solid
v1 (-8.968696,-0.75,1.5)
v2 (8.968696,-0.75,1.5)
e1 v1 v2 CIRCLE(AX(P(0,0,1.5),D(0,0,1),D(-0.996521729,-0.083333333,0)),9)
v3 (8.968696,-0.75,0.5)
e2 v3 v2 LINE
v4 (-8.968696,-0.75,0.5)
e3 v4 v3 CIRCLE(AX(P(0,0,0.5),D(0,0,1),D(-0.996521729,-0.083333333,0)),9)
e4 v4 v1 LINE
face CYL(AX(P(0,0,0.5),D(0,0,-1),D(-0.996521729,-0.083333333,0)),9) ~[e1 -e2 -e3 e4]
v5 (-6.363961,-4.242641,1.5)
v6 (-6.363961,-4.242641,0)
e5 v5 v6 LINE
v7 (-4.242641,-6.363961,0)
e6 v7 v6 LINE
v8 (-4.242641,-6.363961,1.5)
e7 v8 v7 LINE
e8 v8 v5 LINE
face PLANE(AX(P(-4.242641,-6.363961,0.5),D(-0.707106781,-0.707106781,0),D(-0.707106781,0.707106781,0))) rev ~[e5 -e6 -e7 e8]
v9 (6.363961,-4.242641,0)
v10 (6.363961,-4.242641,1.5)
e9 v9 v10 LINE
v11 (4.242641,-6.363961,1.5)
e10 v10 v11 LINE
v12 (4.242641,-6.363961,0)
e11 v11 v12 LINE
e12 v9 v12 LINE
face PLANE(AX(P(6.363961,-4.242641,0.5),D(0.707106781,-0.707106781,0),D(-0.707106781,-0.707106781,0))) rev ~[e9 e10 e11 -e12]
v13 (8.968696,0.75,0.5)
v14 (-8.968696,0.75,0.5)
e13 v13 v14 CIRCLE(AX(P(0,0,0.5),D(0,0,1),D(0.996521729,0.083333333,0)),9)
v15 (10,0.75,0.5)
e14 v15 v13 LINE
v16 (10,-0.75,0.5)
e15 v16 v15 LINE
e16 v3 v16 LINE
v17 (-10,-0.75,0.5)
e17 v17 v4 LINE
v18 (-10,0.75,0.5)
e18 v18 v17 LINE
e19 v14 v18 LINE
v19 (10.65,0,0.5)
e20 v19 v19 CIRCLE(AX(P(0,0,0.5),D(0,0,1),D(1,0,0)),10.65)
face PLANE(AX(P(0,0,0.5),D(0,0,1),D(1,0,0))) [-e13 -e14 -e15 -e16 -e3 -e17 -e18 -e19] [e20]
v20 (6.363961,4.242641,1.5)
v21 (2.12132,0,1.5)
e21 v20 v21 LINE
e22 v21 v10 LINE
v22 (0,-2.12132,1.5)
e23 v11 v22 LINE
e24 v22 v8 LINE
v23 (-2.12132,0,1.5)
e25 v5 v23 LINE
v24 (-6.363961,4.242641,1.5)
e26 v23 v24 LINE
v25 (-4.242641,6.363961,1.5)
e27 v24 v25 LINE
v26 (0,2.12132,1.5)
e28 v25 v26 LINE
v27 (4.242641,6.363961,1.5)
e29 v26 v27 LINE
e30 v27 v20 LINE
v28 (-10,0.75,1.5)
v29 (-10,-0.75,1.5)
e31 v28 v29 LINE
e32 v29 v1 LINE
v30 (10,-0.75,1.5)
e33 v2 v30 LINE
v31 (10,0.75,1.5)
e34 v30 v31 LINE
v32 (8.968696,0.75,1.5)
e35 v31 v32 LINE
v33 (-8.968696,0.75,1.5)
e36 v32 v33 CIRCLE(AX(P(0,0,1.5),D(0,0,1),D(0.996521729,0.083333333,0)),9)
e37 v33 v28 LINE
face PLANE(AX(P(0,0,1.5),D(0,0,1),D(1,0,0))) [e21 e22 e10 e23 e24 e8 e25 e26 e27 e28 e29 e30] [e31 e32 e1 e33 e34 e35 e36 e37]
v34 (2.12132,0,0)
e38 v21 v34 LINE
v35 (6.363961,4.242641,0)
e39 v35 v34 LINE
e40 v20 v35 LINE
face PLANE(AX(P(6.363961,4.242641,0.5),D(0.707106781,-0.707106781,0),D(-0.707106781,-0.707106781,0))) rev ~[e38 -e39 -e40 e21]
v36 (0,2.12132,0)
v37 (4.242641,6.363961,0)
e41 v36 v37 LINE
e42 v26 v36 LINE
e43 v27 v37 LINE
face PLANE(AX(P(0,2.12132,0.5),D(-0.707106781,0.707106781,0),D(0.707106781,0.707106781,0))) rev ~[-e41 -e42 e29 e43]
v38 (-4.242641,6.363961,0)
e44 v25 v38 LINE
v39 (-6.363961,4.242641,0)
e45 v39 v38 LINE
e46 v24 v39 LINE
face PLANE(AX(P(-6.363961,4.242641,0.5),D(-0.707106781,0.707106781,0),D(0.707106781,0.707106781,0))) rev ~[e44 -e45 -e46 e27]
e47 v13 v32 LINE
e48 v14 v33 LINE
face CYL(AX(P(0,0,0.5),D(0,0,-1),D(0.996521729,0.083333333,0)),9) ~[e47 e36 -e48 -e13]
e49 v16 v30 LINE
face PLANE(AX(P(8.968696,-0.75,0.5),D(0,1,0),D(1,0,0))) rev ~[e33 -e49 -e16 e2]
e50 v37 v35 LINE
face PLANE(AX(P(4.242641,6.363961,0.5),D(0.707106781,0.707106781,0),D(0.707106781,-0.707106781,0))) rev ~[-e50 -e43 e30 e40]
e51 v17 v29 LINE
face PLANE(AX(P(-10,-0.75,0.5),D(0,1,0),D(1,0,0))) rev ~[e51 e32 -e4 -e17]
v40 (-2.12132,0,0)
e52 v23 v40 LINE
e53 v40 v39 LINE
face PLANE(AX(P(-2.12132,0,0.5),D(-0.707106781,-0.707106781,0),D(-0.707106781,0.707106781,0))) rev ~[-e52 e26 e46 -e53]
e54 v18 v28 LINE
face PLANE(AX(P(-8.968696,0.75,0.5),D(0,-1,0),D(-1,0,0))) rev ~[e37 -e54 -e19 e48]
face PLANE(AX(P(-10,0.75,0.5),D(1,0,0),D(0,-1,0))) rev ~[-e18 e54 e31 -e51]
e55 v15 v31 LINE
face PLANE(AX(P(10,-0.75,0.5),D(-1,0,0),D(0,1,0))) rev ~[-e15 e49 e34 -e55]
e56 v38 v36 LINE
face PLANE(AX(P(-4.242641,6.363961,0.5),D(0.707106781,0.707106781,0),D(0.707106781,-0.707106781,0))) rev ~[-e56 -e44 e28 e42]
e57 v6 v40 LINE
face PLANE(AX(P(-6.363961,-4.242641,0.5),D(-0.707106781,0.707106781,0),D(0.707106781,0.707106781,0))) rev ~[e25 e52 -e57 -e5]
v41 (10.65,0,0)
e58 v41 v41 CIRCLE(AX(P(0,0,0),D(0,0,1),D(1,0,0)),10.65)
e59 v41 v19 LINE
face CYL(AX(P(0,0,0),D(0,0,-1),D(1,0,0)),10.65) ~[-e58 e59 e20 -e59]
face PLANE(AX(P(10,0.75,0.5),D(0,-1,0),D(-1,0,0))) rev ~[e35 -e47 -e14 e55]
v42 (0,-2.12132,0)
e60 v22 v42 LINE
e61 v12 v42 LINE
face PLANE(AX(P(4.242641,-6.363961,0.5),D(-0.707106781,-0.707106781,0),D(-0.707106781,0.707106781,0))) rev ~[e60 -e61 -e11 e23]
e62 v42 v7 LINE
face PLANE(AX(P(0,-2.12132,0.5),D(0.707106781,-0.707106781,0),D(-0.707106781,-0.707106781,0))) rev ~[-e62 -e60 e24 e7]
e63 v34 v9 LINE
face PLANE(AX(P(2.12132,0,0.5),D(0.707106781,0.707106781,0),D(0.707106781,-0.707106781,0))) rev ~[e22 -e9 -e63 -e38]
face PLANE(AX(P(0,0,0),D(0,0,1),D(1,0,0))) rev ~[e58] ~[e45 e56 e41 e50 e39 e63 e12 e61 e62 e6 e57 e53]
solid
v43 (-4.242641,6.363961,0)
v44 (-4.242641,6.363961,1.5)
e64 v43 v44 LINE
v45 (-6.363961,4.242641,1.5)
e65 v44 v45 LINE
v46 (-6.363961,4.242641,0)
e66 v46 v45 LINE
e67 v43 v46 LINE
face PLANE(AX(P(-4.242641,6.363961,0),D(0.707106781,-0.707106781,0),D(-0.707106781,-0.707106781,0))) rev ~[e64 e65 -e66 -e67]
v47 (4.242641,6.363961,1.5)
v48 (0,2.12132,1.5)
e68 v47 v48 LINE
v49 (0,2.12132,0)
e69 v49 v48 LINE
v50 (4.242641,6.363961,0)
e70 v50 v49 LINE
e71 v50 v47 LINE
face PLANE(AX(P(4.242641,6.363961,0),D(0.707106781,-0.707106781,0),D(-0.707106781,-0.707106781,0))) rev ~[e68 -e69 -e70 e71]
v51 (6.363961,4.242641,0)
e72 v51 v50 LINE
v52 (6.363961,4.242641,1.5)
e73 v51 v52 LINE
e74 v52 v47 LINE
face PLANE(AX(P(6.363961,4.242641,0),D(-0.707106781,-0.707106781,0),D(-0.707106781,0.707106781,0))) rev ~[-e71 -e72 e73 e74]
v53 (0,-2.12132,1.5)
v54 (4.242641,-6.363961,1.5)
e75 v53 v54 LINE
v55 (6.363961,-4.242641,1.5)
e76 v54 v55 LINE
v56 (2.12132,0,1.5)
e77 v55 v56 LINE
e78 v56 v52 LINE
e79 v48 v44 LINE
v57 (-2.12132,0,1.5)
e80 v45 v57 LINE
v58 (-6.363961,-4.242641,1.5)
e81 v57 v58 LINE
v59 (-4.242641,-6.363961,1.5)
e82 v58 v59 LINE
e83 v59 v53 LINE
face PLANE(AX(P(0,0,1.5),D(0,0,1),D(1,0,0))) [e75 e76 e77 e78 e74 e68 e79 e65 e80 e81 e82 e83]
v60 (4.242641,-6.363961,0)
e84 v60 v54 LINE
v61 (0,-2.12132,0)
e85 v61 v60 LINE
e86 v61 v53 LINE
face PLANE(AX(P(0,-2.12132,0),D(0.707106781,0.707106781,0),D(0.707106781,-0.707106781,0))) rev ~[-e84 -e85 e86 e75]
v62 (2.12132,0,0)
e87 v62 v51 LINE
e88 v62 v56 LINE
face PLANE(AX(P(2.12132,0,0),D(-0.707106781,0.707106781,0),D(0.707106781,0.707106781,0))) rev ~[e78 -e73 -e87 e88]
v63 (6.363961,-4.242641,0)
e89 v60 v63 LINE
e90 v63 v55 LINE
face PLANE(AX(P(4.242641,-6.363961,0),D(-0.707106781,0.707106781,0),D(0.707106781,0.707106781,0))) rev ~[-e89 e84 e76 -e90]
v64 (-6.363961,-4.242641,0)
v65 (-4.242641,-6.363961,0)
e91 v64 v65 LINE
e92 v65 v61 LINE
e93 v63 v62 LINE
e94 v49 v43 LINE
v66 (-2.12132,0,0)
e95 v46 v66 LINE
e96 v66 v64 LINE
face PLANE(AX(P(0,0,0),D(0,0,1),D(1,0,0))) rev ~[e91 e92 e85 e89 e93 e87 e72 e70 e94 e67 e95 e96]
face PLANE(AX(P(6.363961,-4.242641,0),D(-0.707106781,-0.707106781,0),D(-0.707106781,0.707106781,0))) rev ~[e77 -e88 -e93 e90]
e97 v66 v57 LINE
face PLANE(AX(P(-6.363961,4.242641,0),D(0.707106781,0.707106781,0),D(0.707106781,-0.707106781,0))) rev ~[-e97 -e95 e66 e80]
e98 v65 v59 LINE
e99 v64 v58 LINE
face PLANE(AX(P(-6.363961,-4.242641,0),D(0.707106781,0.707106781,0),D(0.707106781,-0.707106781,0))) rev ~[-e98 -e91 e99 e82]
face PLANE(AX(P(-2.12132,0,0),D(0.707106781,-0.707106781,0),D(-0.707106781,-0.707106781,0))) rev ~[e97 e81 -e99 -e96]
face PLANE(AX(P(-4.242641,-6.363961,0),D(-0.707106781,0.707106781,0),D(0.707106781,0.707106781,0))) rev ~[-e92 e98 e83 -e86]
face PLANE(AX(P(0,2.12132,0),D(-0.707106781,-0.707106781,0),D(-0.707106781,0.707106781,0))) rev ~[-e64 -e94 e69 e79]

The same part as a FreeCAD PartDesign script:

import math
import FreeCAD as App
import Part
import Sketcher

V = App.Vector

doc = App.newDocument("Part")
body = doc.addObject("PartDesign::Body", "Body")

# Sketch on XY plane
sketch1 = body.newObject("Sketcher::SketchObject", "Sketch")
sketch1.AttachmentSupport = (doc.getObject("XY_Plane"), [""])
sketch1.MapMode = "FlatFace"
sketch1.addGeometry([
    Part.Circle(V(0, 0, 0), V(0, 0, 1), 10.65),  # 0
    Part.LineSegment(V(0, -2.12132, 0), V(-4.242641, -6.363961, 0)),  # 1
    Part.LineSegment(V(-4.242641, -6.363961, 0), V(-6.363961, -4.242641, 0)),  # 2
    Part.LineSegment(V(-6.363961, -4.242641, 0), V(-2.12132, 0, 0)),  # 3
    Part.LineSegment(V(-2.12132, 0, 0), V(-6.363961, 4.242641, 0)),  # 4
    Part.LineSegment(V(-6.363961, 4.242641, 0), V(-4.242641, 6.363961, 0)),  # 5
    Part.LineSegment(V(-4.242641, 6.363961, 0), V(0, 2.12132, 0)),  # 6
    Part.LineSegment(V(0, 2.12132, 0), V(4.242641, 6.363961, 0)),  # 7
    Part.LineSegment(V(4.242641, 6.363961, 0), V(6.363961, 4.242641, 0)),  # 8
    Part.LineSegment(V(6.363961, 4.242641, 0), V(2.12132, 0, 0)),  # 9
    Part.LineSegment(V(2.12132, 0, 0), V(6.363961, -4.242641, 0)),  # 10
    Part.LineSegment(V(6.363961, -4.242641, 0), V(4.242641, -6.363961, 0)),  # 11
    Part.LineSegment(V(4.242641, -6.363961, 0), V(0, -2.12132, 0)),  # 12
], False)
sketch1.addConstraint([
    Sketcher.Constraint("Coincident", 1, 2, 2, 1),
    Sketcher.Constraint("Coincident", 2, 2, 3, 1),
    Sketcher.Constraint("Coincident", 3, 2, 4, 1),
    Sketcher.Constraint("Coincident", 4, 2, 5, 1),
    Sketcher.Constraint("Coincident", 5, 2, 6, 1),
    Sketcher.Constraint("Coincident", 6, 2, 7, 1),
    Sketcher.Constraint("Coincident", 7, 2, 8, 1),
    Sketcher.Constraint("Coincident", 8, 2, 9, 1),
    Sketcher.Constraint("Coincident", 9, 2, 10, 1),
    Sketcher.Constraint("Coincident", 10, 2, 11, 1),
    Sketcher.Constraint("Coincident", 11, 2, 12, 1),
    Sketcher.Constraint("Coincident", 12, 2, 1, 1),
    Sketcher.Constraint("Coincident", 0, 3, -1, 1),
    Sketcher.Constraint("Symmetric", 1, 2, 7, 2, -1, 1),
    Sketcher.Constraint("Symmetric", 2, 2, 8, 2, -1, 1),
    Sketcher.Constraint("Symmetric", 3, 2, 9, 2, -1, 1),
    Sketcher.Constraint("Symmetric", 4, 2, 10, 2, -1, 1),
    Sketcher.Constraint("Symmetric", 5, 2, 11, 2, -1, 1),
    Sketcher.Constraint("Symmetric", 6, 2, 12, 2, -1, 1),
    Sketcher.Constraint("Symmetric", 5, 2, 7, 2, -2),
    Sketcher.Constraint("Symmetric", 4, 2, 8, 2, -2),
    Sketcher.Constraint("PointOnObject", 3, 2, -1),
    Sketcher.Constraint("PointOnObject", 6, 2, -2),
    Sketcher.Constraint("Perpendicular", 1, 2),
    Sketcher.Constraint("Perpendicular", 2, 3),
    Sketcher.Constraint("Perpendicular", 3, 4),
    Sketcher.Constraint("Equal", 1, 3),
    Sketcher.Constraint("Diameter", 0, 21.3),
    Sketcher.Constraint("Distance", 1, 6.0),
    Sketcher.Constraint("Distance", 2, 3.0),
])
pad1 = body.newObject("PartDesign::Pad", "Pad")
pad1.Profile = sketch1
pad1.Length = 0.5

# Sketch on XY plane
sketch2 = body.newObject("Sketcher::SketchObject", "Sketch001")
sketch2.AttachmentSupport = (doc.getObject("XY_Plane"), [""])
sketch2.MapMode = "FlatFace"
sketch2.AttachmentOffset = App.Placement(V(0, 0, 0.5), App.Rotation())
sketch2.addGeometry([
    Part.LineSegment(V(-10, -0.75, 0), V(-8.968696, -0.75, 0)),  # 0
    Part.ArcOfCircle(Part.Circle(V(0, 0, 0), V(0, 0, 1), 9), math.radians(-175.219808), math.radians(-4.780192)),  # 1
    Part.LineSegment(V(8.968696, -0.75, 0), V(10, -0.75, 0)),  # 2
    Part.LineSegment(V(10, -0.75, 0), V(10, 0.75, 0)),  # 3
    Part.LineSegment(V(10, 0.75, 0), V(8.968696, 0.75, 0)),  # 4
    Part.ArcOfCircle(Part.Circle(V(0, 0, 0), V(0, 0, 1), 9), math.radians(4.780192), math.radians(175.219808)),  # 5
    Part.LineSegment(V(-8.968696, 0.75, 0), V(-10, 0.75, 0)),  # 6
    Part.LineSegment(V(-10, 0.75, 0), V(-10, -0.75, 0)),  # 7
    Part.LineSegment(V(2.12132, 0, 0), V(6.363961, -4.242641, 0)),  # 8
    Part.LineSegment(V(6.363961, -4.242641, 0), V(4.242641, -6.363961, 0)),  # 9
    Part.LineSegment(V(4.242641, -6.363961, 0), V(0, -2.12132, 0)),  # 10
    Part.LineSegment(V(0, -2.12132, 0), V(-4.242641, -6.363961, 0)),  # 11
    Part.LineSegment(V(-4.242641, -6.363961, 0), V(-6.363961, -4.242641, 0)),  # 12
    Part.LineSegment(V(-6.363961, -4.242641, 0), V(-2.12132, 0, 0)),  # 13
    Part.LineSegment(V(-2.12132, 0, 0), V(-6.363961, 4.242641, 0)),  # 14
    Part.LineSegment(V(-6.363961, 4.242641, 0), V(-4.242641, 6.363961, 0)),  # 15
    Part.LineSegment(V(-4.242641, 6.363961, 0), V(0, 2.12132, 0)),  # 16
    Part.LineSegment(V(0, 2.12132, 0), V(4.242641, 6.363961, 0)),  # 17
    Part.LineSegment(V(4.242641, 6.363961, 0), V(6.363961, 4.242641, 0)),  # 18
    Part.LineSegment(V(6.363961, 4.242641, 0), V(2.12132, 0, 0)),  # 19
], False)
sketch2.addConstraint([
    Sketcher.Constraint("Coincident", 0, 2, 1, 1),
    Sketcher.Constraint("Coincident", 1, 2, 2, 1),
    Sketcher.Constraint("Coincident", 2, 2, 3, 1),
    Sketcher.Constraint("Coincident", 3, 2, 4, 1),
    Sketcher.Constraint("Coincident", 4, 2, 5, 1),
    Sketcher.Constraint("Coincident", 5, 2, 6, 1),
    Sketcher.Constraint("Coincident", 6, 2, 7, 1),
    Sketcher.Constraint("Coincident", 7, 2, 0, 1),
    Sketcher.Constraint("Coincident", 8, 2, 9, 1),
    Sketcher.Constraint("Coincident", 9, 2, 10, 1),
    Sketcher.Constraint("Coincident", 10, 2, 11, 1),
    Sketcher.Constraint("Coincident", 11, 2, 12, 1),
    Sketcher.Constraint("Coincident", 12, 2, 13, 1),
    Sketcher.Constraint("Coincident", 13, 2, 14, 1),
    Sketcher.Constraint("Coincident", 14, 2, 15, 1),
    Sketcher.Constraint("Coincident", 15, 2, 16, 1),
    Sketcher.Constraint("Coincident", 16, 2, 17, 1),
    Sketcher.Constraint("Coincident", 17, 2, 18, 1),
    Sketcher.Constraint("Coincident", 18, 2, 19, 1),
    Sketcher.Constraint("Coincident", 19, 2, 8, 1),
    Sketcher.Constraint("Horizontal", 0),
    Sketcher.Constraint("Horizontal", 2),
    Sketcher.Constraint("Vertical", 3),
    Sketcher.Constraint("Horizontal", 4),
    Sketcher.Constraint("Horizontal", 6),
    Sketcher.Constraint("Vertical", 7),
    Sketcher.Constraint("Coincident", 1, 3, -1, 1),
    Sketcher.Constraint("Coincident", 5, 3, -1, 1),
    Sketcher.Constraint("Equal", 1, 5),
    Sketcher.Constraint("Symmetric", 2, 2, 6, 2, -1, 1),
    Sketcher.Constraint("Symmetric", 8, 2, 14, 2, -1, 1),
    Sketcher.Constraint("Symmetric", 9, 2, 15, 2, -1, 1),
    Sketcher.Constraint("Symmetric", 10, 2, 16, 2, -1, 1),
    Sketcher.Constraint("Symmetric", 11, 2, 17, 2, -1, 1),
    Sketcher.Constraint("Symmetric", 12, 2, 18, 2, -1, 1),
    Sketcher.Constraint("Symmetric", 13, 2, 19, 2, -1, 1),
    Sketcher.Constraint("Symmetric", 9, 2, 11, 2, -2),
    Sketcher.Constraint("Symmetric", 8, 2, 12, 2, -2),
    Sketcher.Constraint("PointOnObject", 10, 2, -2),
    Sketcher.Constraint("PointOnObject", 13, 2, -1),
    Sketcher.Constraint("Perpendicular", 8, 9),
    Sketcher.Constraint("Perpendicular", 9, 10),
    Sketcher.Constraint("Perpendicular", 10, 11),
    Sketcher.Constraint("Horizontal", 0, 2, 1, 2),
    Sketcher.Constraint("Horizontal", 4, 2, 5, 2),
    Sketcher.Constraint("Equal", 8, 10),
    Sketcher.Constraint("Radius", 1, 9.0),
    Sketcher.Constraint("Distance", 8, 6.0),
    Sketcher.Constraint("Distance", 9, 3.0),
    Sketcher.Constraint("DistanceY", 3, 1, 3, 2, 1.5),
    Sketcher.Constraint("DistanceX", -1, 1, 2, 2, 10.0),
])
pad2 = body.newObject("PartDesign::Pad", "Pad001")
pad2.Profile = sketch2
pad2.Length = 1
body2 = doc.addObject("PartDesign::Body", "Body001")

# Sketch on XY plane
sketch3 = body2.newObject("Sketcher::SketchObject", "Sketch002")
sketch3.AttachmentSupport = (doc.getObject("XY_Plane001"), [""])
sketch3.MapMode = "FlatFace"
sketch3.addGeometry([
    Part.LineSegment(V(-2.12132, 0, 0), V(-6.363961, -4.242641, 0)),  # 0
    Part.LineSegment(V(-6.363961, -4.242641, 0), V(-4.242641, -6.363961, 0)),  # 1
    Part.LineSegment(V(-4.242641, -6.363961, 0), V(0, -2.12132, 0)),  # 2
    Part.LineSegment(V(0, -2.12132, 0), V(4.242641, -6.363961, 0)),  # 3
    Part.LineSegment(V(4.242641, -6.363961, 0), V(6.363961, -4.242641, 0)),  # 4
    Part.LineSegment(V(6.363961, -4.242641, 0), V(2.12132, 0, 0)),  # 5
    Part.LineSegment(V(2.12132, 0, 0), V(6.363961, 4.242641, 0)),  # 6
    Part.LineSegment(V(6.363961, 4.242641, 0), V(4.242641, 6.363961, 0)),  # 7
    Part.LineSegment(V(4.242641, 6.363961, 0), V(0, 2.12132, 0)),  # 8
    Part.LineSegment(V(0, 2.12132, 0), V(-4.242641, 6.363961, 0)),  # 9
    Part.LineSegment(V(-4.242641, 6.363961, 0), V(-6.363961, 4.242641, 0)),  # 10
    Part.LineSegment(V(-6.363961, 4.242641, 0), V(-2.12132, 0, 0)),  # 11
], False)
sketch3.addConstraint([
    Sketcher.Constraint("Coincident", 0, 2, 1, 1),
    Sketcher.Constraint("Coincident", 1, 2, 2, 1),
    Sketcher.Constraint("Coincident", 2, 2, 3, 1),
    Sketcher.Constraint("Coincident", 3, 2, 4, 1),
    Sketcher.Constraint("Coincident", 4, 2, 5, 1),
    Sketcher.Constraint("Coincident", 5, 2, 6, 1),
    Sketcher.Constraint("Coincident", 6, 2, 7, 1),
    Sketcher.Constraint("Coincident", 7, 2, 8, 1),
    Sketcher.Constraint("Coincident", 8, 2, 9, 1),
    Sketcher.Constraint("Coincident", 9, 2, 10, 1),
    Sketcher.Constraint("Coincident", 10, 2, 11, 1),
    Sketcher.Constraint("Coincident", 11, 2, 0, 1),
    Sketcher.Constraint("Symmetric", 0, 2, 6, 2, -1, 1),
    Sketcher.Constraint("Symmetric", 1, 2, 7, 2, -1, 1),
    Sketcher.Constraint("Symmetric", 2, 2, 8, 2, -1, 1),
    Sketcher.Constraint("Symmetric", 3, 2, 9, 2, -1, 1),
    Sketcher.Constraint("Symmetric", 4, 2, 10, 2, -1, 1),
    Sketcher.Constraint("Symmetric", 5, 2, 11, 2, -1, 1),
    Sketcher.Constraint("Symmetric", 1, 2, 3, 2, -2),
    Sketcher.Constraint("Symmetric", 0, 2, 4, 2, -2),
    Sketcher.Constraint("PointOnObject", 2, 2, -2),
    Sketcher.Constraint("PointOnObject", 5, 2, -1),
    Sketcher.Constraint("Perpendicular", 0, 1),
    Sketcher.Constraint("Perpendicular", 1, 2),
    Sketcher.Constraint("Perpendicular", 2, 3),
    Sketcher.Constraint("Equal", 0, 2),
    Sketcher.Constraint("Distance", 0, 6.0),
    Sketcher.Constraint("Distance", 1, 3.0),
])
pad3 = body2.newObject("PartDesign::Pad", "Pad002")
pad3.Profile = sketch3
pad3.Length = 1.5

doc.recompute()
